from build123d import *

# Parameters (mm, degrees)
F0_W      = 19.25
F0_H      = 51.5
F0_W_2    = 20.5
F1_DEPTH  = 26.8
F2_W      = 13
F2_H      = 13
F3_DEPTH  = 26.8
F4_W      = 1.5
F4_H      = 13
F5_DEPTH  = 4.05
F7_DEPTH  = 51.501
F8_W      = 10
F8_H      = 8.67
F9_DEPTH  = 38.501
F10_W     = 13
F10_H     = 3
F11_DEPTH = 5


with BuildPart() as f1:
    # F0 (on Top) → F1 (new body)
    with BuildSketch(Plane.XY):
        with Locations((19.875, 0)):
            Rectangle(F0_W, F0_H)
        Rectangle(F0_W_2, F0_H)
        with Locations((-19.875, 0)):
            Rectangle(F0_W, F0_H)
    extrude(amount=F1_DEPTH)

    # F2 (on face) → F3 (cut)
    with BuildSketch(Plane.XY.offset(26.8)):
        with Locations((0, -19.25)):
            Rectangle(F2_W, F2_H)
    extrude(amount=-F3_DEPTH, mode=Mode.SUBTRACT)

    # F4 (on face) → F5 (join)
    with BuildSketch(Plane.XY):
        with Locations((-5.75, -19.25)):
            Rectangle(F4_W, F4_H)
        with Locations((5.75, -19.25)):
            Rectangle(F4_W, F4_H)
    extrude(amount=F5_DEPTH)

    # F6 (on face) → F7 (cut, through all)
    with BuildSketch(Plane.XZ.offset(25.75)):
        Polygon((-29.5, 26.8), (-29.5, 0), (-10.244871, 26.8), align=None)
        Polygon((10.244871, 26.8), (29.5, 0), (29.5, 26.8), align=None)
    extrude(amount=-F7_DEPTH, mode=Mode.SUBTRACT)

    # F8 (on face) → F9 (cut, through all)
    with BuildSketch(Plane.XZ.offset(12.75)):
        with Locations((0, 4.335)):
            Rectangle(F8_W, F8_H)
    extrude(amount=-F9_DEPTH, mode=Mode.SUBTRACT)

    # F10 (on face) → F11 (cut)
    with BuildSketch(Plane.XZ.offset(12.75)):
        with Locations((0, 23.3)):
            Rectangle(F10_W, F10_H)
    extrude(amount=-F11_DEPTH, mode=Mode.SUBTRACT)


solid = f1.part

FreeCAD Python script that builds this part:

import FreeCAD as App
import Part
import Sketcher

V = App.Vector
Q = App.Units.Quantity

doc = App.newDocument("Part")
body = doc.addObject("PartDesign::Body", "Body")

# Sketch on XY plane
sketch1 = doc.addObject("Sketcher::SketchObject", "Sketch")
body.addObject(sketch1)
sketch1.AttachmentSupport = (doc.XY_Plane, [""])
sketch1.MapMode = "FlatFace"
sketch1.addGeometry(Part.LineSegment(V(30, -26, 0), V(30, 26, 0)), False)
sketch1.addGeometry(Part.LineSegment(V(30, 26, 0), V(-30, 26, 0)), False)
sketch1.addGeometry(Part.LineSegment(V(-30, 26, 0), V(-30, -26, 0)), False)
sketch1.addGeometry(Part.LineSegment(V(-30, -26, 0), V(30, -26, 0)), False)
sketch1.addConstraint(Sketcher.Constraint("Coincident", 0, 2, 1, 1))
sketch1.addConstraint(Sketcher.Constraint("Coincident", 1, 2, 2, 1))
sketch1.addConstraint(Sketcher.Constraint("Coincident", 2, 2, 3, 1))
sketch1.addConstraint(Sketcher.Constraint("Coincident", 3, 2, 0, 1))
sketch1.addConstraint(Sketcher.Constraint("Vertical", 0))
sketch1.addConstraint(Sketcher.Constraint("Horizontal", 1))
sketch1.addConstraint(Sketcher.Constraint("Vertical", 2))
sketch1.addConstraint(Sketcher.Constraint("Horizontal", 3))
sketch1.addConstraint(Sketcher.Constraint("Symmetric", 0, 2, 2, 2, -1, 1))
sketch1.addConstraint(Sketcher.Constraint("DistanceX", 1, 2, 1, 1, Q("59 mm")))
sketch1.addConstraint(Sketcher.Constraint("DistanceY", 0, 1, 0, 2, Q("51.5 mm")))
pad1 = doc.addObject("PartDesign::Pad", "Pad")
body.addObject(pad1)
pad1.Profile = sketch1
pad1.Length = 26.8

# Sketch on XY plane
sketch2 = doc.addObject("Sketcher::SketchObject", "Sketch001")
body.addObject(sketch2)
sketch2.AttachmentSupport = (doc.XY_Plane, [""])
sketch2.MapMode = "FlatFace"
sketch2.AttachmentOffset = App.Placement(V(0, 0, 26.8), App.Rotation())
sketch2.addGeometry(Part.LineSegment(V(-6, -13, 0), V(-6, -26, 0)), False)
sketch2.addGeometry(Part.LineSegment(V(-6, -26, 0), V(6, -26, 0)), False)
sketch2.addGeometry(Part.LineSegment(V(6, -26, 0), V(6, -13, 0)), False)
sketch2.addGeometry(Part.LineSegment(V(6, -13, 0), V(-6, -13, 0)), False)
sketch2.addConstraint(Sketcher.Constraint("Coincident", 0, 2, 1, 1))
sketch2.addConstraint(Sketcher.Constraint("Coincident", 1, 2, 2, 1))
sketch2.addConstraint(Sketcher.Constraint("Coincident", 2, 2, 3, 1))
sketch2.addConstraint(Sketcher.Constraint("Coincident", 3, 2, 0, 1))
sketch2.addConstraint(Sketcher.Constraint("Vertical", 0))
sketch2.addConstraint(Sketcher.Constraint("Horizontal", 1))
sketch2.addConstraint(Sketcher.Constraint("Vertical", 2))
sketch2.addConstraint(Sketcher.Constraint("Horizontal", 3))
sketch2.addConstraint(Sketcher.Constraint("Equal", 3, 0))
sketch2.addConstraint(Sketcher.Constraint("DistanceX", 1, 1, 1, 2, Q("13 mm")))
sketch2.addConstraint(Sketcher.Constraint("DistanceX", 0, 2, -1, 1, Q("6.5 mm")))
sketch2.addConstraint(Sketcher.Constraint("DistanceY", 0, 2, -1, 1, Q("25.75 mm")))
pocket1 = doc.addObject("PartDesign::Pocket", "Pocket")
body.addObject(pocket1)
pocket1.Profile = sketch2
pocket1.Length = 26.8

# Sketch on XY plane
sketch3 = doc.addObject("Sketcher::SketchObject", "Sketch002")
body.addObject(sketch3)
sketch3.AttachmentSupport = (doc.XY_Plane, [""])
sketch3.MapMode = "FlatFace"
sketch3.addGeometry(Part.LineSegment(V(-6.5, -12.8, 0), V(-6.5, -25.8, 0)), False)
sketch3.addGeometry(Part.LineSegment(V(-6.5, -25.8, 0), V(-5, -25.8, 0)), False)
sketch3.addGeometry(Part.LineSegment(V(-5, -25.8, 0), V(-5, -12.8, 0)), False)
sketch3.addGeometry(Part.LineSegment(V(-5, -12.8, 0), V(-6.5, -12.8, 0)), False)
sketch3.addGeometry(Part.LineSegment(V(5, -12.8, 0), V(5, -25.8, 0)), False)
sketch3.addGeometry(Part.LineSegment(V(5, -25.8, 0), V(6.5, -25.8, 0)), False)
sketch3.addGeometry(Part.LineSegment(V(6.5, -25.8, 0), V(6.5, -12.8, 0)), False)
sketch3.addGeometry(Part.LineSegment(V(6.5, -12.8, 0), V(5, -12.8, 0)), False)
sketch3.addConstraint(Sketcher.Constraint("Coincident", 0, 2, 1, 1))
sketch3.addConstraint(Sketcher.Constraint("Coincident", 1, 2, 2, 1))
sketch3.addConstraint(Sketcher.Constraint("Coincident", 2, 2, 3, 1))
sketch3.addConstraint(Sketcher.Constraint("Coincident", 3, 2, 0, 1))
sketch3.addConstraint(Sketcher.Constraint("Coincident", 4, 2, 5, 1))
sketch3.addConstraint(Sketcher.Constraint("Coincident", 5, 2, 6, 1))
sketch3.addConstraint(Sketcher.Constraint("Coincident", 6, 2, 7, 1))
sketch3.addConstraint(Sketcher.Constraint("Coincident", 7, 2, 4, 1))
sketch3.addConstraint(Sketcher.Constraint("Vertical", 0))
sketch3.addConstraint(Sketcher.Constraint("Horizontal", 1))
sketch3.addConstraint(Sketcher.Constraint("Vertical", 2))
sketch3.addConstraint(Sketcher.Constraint("Horizontal", 3))
sketch3.addConstraint(Sketcher.Constraint("Vertical", 4))
sketch3.addConstraint(Sketcher.Constraint("Horizontal", 5))
sketch3.addConstraint(Sketcher.Constraint("Vertical", 6))
sketch3.addConstraint(Sketcher.Constraint("Horizontal", 7))
sketch3.addConstraint(Sketcher.Constraint("Symmetric", 1, 2, 4, 2, -2))
sketch3.addConstraint(Sketcher.Constraint("Symmetric", 3, 2, 6, 2, -2))
sketch3.addConstraint(Sketcher.Constraint("DistanceY", 0, 2, 0, 1, Q("13 mm")))
sketch3.addConstraint(Sketcher.Constraint("DistanceX", 1, 1, 1, 2, Q("1.5 mm")))
sketch3.addConstraint(Sketcher.Constraint("DistanceX", 1, 2, -1, 1, Q("5 mm")))
sketch3.addConstraint(Sketcher.Constraint("DistanceY", 0, 2, -1, 1, Q("25.75 mm")))
pad2 = doc.addObject("PartDesign::Pad", "Pad001")
body.addObject(pad2)
pad2.Profile = sketch3
pad2.Length = 4.05

# Sketch on XZ plane
sketch4 = doc.addObject("Sketcher::SketchObject", "Sketch003")
body.addObject(sketch4)
sketch4.AttachmentSupport = (doc.XZ_Plane, [""])
sketch4.MapMode = "FlatFace"
sketch4.AttachmentOffset = App.Placement(V(0, 0, 25.75), App.Rotation())
sketch4.addGeometry(Part.LineSegment(V(-30, 27, 0), V(-30, 0, 0)), False)
sketch4.addGeometry(Part.LineSegment(V(-30, 0, 0), V(-10, 27, 0)), False)
sketch4.addGeometry(Part.LineSegment(V(-10, 27, 0), V(-30, 27, 0)), False)
sketch4.addGeometry(Part.LineSegment(V(10, 27, 0), V(30, 0, 0)), False)
sketch4.addGeometry(Part.LineSegment(V(30, 0, 0), V(30, 27, 0)), False)
sketch4.addGeometry(Part.LineSegment(V(30, 27, 0), V(10, 27, 0)), False)
sketch4.addConstraint(Sketcher.Constraint("Coincident", 0, 2, 1, 1))
sketch4.addConstraint(Sketcher.Constraint("Coincident", 1, 2, 2, 1))
sketch4.addConstraint(Sketcher.Constraint("Coincident", 2, 2, 0, 1))
sketch4.addConstraint(Sketcher.Constraint("Coincident", 3, 2, 4, 1))
sketch4.addConstraint(Sketcher.Constraint("Coincident", 4, 2, 5, 1))
sketch4.addConstraint(Sketcher.Constraint("Coincident", 5, 2, 3, 1))
sketch4.addConstraint(Sketcher.Constraint("Vertical", 0))
sketch4.addConstraint(Sketcher.Constraint("Horizontal", 2))
sketch4.addConstraint(Sketcher.Constraint("Vertical", 4))
sketch4.addConstraint(Sketcher.Constraint("Horizontal", 5))
sketch4.addConstraint(Sketcher.Constraint("Symmetric", 0, 2, 3, 2, -1, 1))
sketch4.addConstraint(Sketcher.Constraint("Symmetric", 1, 2, 5, 2, -2))
sketch4.addConstraint(Sketcher.Constraint("PointOnObject", 0, 2, -1))
sketch4.addConstraint(Sketcher.Constraint("Distance", 1, Q("33 mm")))
sketch4.addConstraint(Sketcher.Constraint("DistanceY", 0, 2, 0, 1, Q("26.8 mm")))
sketch4.addConstraint(Sketcher.Constraint("DistanceX", 0, 2, 3, 2, Q("59 mm")))
pocket2 = doc.addObject("PartDesign::Pocket", "Pocket001")
body.addObject(pocket2)
pocket2.Profile = sketch4
pocket2.Type = "ThroughAll"

# Sketch on XZ plane
sketch5 = doc.addObject("Sketcher::SketchObject", "Sketch004")
body.addObject(sketch5)
sketch5.AttachmentSupport = (doc.XZ_Plane, [""])
sketch5.MapMode = "FlatFace"
sketch5.AttachmentOffset = App.Placement(V(0, 0, 12.75), App.Rotation())
sketch5.addGeometry(Part.LineSegment(V(-5, 9, 0), V(-5, 0, 0)), False)
sketch5.addGeometry(Part.LineSegment(V(-5, 0, 0), V(5, 0, 0)), False)
sketch5.addGeometry(Part.LineSegment(V(5, 0, 0), V(5, 9, 0)), False)
sketch5.addGeometry(Part.LineSegment(V(5, 9, 0), V(-5, 9, 0)), False)
sketch5.addConstraint(Sketcher.Constraint("Coincident", 0, 2, 1, 1))
sketch5.addConstraint(Sketcher.Constraint("Coincident", 1, 2, 2, 1))
sketch5.addConstraint(Sketcher.Constraint("Coincident", 2, 2, 3, 1))
sketch5.addConstraint(Sketcher.Constraint("Coincident", 3, 2, 0, 1))
sketch5.addConstraint(Sketcher.Constraint("Vertical", 0))
sketch5.addConstraint(Sketcher.Constraint("Horizontal", 1))
sketch5.addConstraint(Sketcher.Constraint("Vertical", 2))
sketch5.addConstraint(Sketcher.Constraint("Horizontal", 3))
sketch5.addConstraint(Sketcher.Constraint("Symmetric", 0, 2, 1, 2, -1, 1))
sketch5.addConstraint(Sketcher.Constraint("DistanceX", 1, 1, 1, 2, Q("10 mm")))
sketch5.addConstraint(Sketcher.Constraint("DistanceY", 0, 2, 0, 1, Q("8.67 mm")))
pocket3 = doc.addObject("PartDesign::Pocket", "Pocket002")
body.addObject(pocket3)
pocket3.Profile = sketch5
pocket3.Type = "ThroughAll"

# Sketch on XZ plane
sketch6 = doc.addObject("Sketcher::SketchObject", "Sketch005")
body.addObject(sketch6)
sketch6.AttachmentSupport = (doc.XZ_Plane, [""])
sketch6.MapMode = "FlatFace"
sketch6.AttachmentOffset = App.Placement(V(0, 0, 12.75), App.Rotation())
sketch6.addGeometry(Part.LineSegment(V(-6.5, 24.8, 0), V(-6.5, 21.8, 0)), False)
sketch6.addGeometry(Part.LineSegment(V(-6.5, 21.8, 0), V(6.5, 21.8, 0)), False)
sketch6.addGeometry(Part.LineSegment(V(6.5, 21.8, 0), V(6.5, 24.8, 0)), False)
sketch6.addGeometry(Part.LineSegment(V(6.5, 24.8, 0), V(-6.5, 24.8, 0)), False)
sketch6.addConstraint(Sketcher.Constraint("Coincident", 0, 2, 1, 1))
sketch6.addConstraint(Sketcher.Constraint("Coincident", 1, 2, 2, 1))
sketch6.addConstraint(Sketcher.Constraint("Coincident", 2, 2, 3, 1))
sketch6.addConstraint(Sketcher.Constraint("Coincident", 3, 2, 0, 1))
sketch6.addConstraint(Sketcher.Constraint("Vertical", 0))
sketch6.addConstraint(Sketcher.Constraint("Horizontal", 1))
sketch6.addConstraint(Sketcher.Constraint("Vertical", 2))
sketch6.addConstraint(Sketcher.Constraint("Horizontal", 3))
sketch6.addConstraint(Sketcher.Constraint("DistanceX", 1, 1, 1, 2, Q("13 mm")))
sketch6.addConstraint(Sketcher.Constraint("DistanceY", 0, 2, 0, 1, Q("3 mm")))
sketch6.addConstraint(Sketcher.Constraint("DistanceX", 0, 2, -1, 1, Q("6.5 mm")))
sketch6.addConstraint(Sketcher.Constraint("DistanceY", -1, 1, 0, 2, Q("21.8 mm")))
pocket4 = doc.addObject("PartDesign::Pocket", "Pocket003")
body.addObject(pocket4)
pocket4.Profile = sketch6
pocket4.Length = 5

doc.recompute()
